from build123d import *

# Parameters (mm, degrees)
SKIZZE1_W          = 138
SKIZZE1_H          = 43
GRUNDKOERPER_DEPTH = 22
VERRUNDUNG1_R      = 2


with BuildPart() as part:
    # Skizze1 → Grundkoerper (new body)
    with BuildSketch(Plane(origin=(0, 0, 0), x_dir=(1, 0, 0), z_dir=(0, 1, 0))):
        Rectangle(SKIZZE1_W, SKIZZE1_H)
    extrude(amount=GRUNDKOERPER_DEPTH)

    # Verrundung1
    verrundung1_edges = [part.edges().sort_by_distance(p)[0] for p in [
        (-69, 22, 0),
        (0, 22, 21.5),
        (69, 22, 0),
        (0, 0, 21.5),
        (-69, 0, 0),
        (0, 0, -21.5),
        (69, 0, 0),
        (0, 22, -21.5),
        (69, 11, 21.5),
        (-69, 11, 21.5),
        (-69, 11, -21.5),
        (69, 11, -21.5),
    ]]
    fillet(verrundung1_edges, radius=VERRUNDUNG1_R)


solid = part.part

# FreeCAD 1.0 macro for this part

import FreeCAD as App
import Part
import Sketcher

V = App.Vector

doc = App.newDocument("Part")
body = doc.addObject("PartDesign::Body", "Body")

sketch1 = body.newObject("Sketcher::SketchObject", "Sketch")
sketch1.AttachmentSupport = (doc.getObject("XZ_Plane"), [""])
sketch1.MapMode = "FlatFace"
sketch1.addGeometry([
    Part.LineSegment(V(-69, -22, 0), V(-69, 22, 0)),
    Part.LineSegment(V(-69, 22, 0), V(69, 22, 0)),
    Part.LineSegment(V(69, 22, 0), V(69, -22, 0)),
    Part.LineSegment(V(69, -22, 0), V(-69, -22, 0)),
], False)
sketch1.addConstraint([
    Sketcher.Constraint("Coincident", 0, 2, 1, 1),
    Sketcher.Constraint("Coincident", 1, 2, 2, 1),
    Sketcher.Constraint("Coincident", 2, 2, 3, 1),
    Sketcher.Constraint("Coincident", 3, 2, 0, 1),
    Sketcher.Constraint("Vertical", 0),
    Sketcher.Constraint("Horizontal", 1),
    Sketcher.Constraint("Vertical", 2),
    Sketcher.Constraint("Horizontal", 3),
    Sketcher.Constraint("Symmetric", 0, 2, 2, 2, -1, 1),
    Sketcher.Constraint("DistanceX", 1, 1, 1, 2, 138.0),
    Sketcher.Constraint("DistanceY", 0, 1, 0, 2, 43.0),
])
pad1 = body.newObject("PartDesign::Pad", "Pad")
pad1.Profile = sketch1
pad1.Length = 22
pad1.Reversed = True
doc.recompute()

fillet = body.newObject("PartDesign::Fillet", "Fillet")
fillet.Base = (pad1, ["Edge1"])
fillet.UseAllEdges = True
fillet.Radius = 2

doc.recompute()
